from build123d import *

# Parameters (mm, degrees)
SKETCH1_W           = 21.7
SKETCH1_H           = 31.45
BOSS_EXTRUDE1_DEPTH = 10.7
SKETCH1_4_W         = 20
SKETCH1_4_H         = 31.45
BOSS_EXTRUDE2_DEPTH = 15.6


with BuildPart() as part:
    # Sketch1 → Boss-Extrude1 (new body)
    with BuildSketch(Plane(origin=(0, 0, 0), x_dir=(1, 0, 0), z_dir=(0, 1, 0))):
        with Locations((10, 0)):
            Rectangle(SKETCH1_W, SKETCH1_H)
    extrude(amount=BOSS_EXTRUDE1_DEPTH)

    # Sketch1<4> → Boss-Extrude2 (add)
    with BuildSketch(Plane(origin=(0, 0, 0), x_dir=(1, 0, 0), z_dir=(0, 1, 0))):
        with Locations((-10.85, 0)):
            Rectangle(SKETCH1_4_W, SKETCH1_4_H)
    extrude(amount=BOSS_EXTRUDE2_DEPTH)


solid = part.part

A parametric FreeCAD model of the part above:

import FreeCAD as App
import Part
import Sketcher
from FreeCAD import Vector
Q = App.Units.Quantity


def add_polygon(sketch, points):
    """Adds a closed chain of lines whose ends are joined by coincident constraints."""
    first, n = sketch.GeometryCount, len(points)
    for a, b in zip(points, points[1:] + points[:1]):
        sketch.addGeometry(Part.LineSegment(App.Vector(*a, 0), App.Vector(*b, 0)), False)
    for i in range(n):
        sketch.addConstraint(Sketcher.Constraint("Coincident", first + i, 2, first + (i + 1) % n, 1))

doc = App.newDocument("Part")
body = doc.addObject("PartDesign::Body", "Body")

sketch1 = body.newObject("Sketcher::SketchObject", "Sketch")
sketch1.AttachmentSupport = (doc.getObject("XZ_Plane"), [""])
sketch1.MapMode = "FlatFace"
add_polygon(sketch1, [(-1, -16), (-1, 16), (21, 16), (21, -16)])
sketch1.addConstraint([
    Sketcher.Constraint("Vertical", 0),
    Sketcher.Constraint("Horizontal", 1),
    Sketcher.Constraint("Vertical", 2),
    Sketcher.Constraint("Horizontal", 3),
    Sketcher.Constraint("DistanceX", 1, 1, 1, 2, Q("21.7 mm")),
    Sketcher.Constraint("DistanceY", 0, 1, 0, 2, Q("31.45 mm")),
    Sketcher.Constraint("DistanceX", 0, 2, -1, 1, Q("0.85 mm")),
    Sketcher.Constraint("DistanceY", -1, 1, 0, 2, Q("15.725 mm")),
])
pad1 = body.newObject("PartDesign::Pad", "Pad")
pad1.Profile = sketch1
pad1.Length = 10.7
pad1.Reversed = True

sketch2 = body.newObject("Sketcher::SketchObject", "Sketch001")
sketch2.AttachmentSupport = (doc.getObject("XZ_Plane"), [""])
sketch2.MapMode = "FlatFace"
add_polygon(sketch2, [(-21, -16), (-21, 16), (-1, 16), (-1, -16)])
sketch2.addConstraint([
    Sketcher.Constraint("Vertical", 0),
    Sketcher.Constraint("Horizontal", 1),
    Sketcher.Constraint("Vertical", 2),
    Sketcher.Constraint("Horizontal", 3),
    Sketcher.Constraint("DistanceX", 1, 1, 1, 2, Q("20 mm")),
    Sketcher.Constraint("DistanceY", 0, 1, 0, 2, Q("31.45 mm")),
    Sketcher.Constraint("DistanceX", 0, 2, -1, 1, Q("20.85 mm")),
    Sketcher.Constraint("DistanceY", -1, 1, 0, 2, Q("15.725 mm")),
])
pad2 = body.newObject("PartDesign::Pad", "Pad001")
pad2.Profile = sketch2
pad2.Length = 15.6
pad2.Reversed = True

doc.recompute()
